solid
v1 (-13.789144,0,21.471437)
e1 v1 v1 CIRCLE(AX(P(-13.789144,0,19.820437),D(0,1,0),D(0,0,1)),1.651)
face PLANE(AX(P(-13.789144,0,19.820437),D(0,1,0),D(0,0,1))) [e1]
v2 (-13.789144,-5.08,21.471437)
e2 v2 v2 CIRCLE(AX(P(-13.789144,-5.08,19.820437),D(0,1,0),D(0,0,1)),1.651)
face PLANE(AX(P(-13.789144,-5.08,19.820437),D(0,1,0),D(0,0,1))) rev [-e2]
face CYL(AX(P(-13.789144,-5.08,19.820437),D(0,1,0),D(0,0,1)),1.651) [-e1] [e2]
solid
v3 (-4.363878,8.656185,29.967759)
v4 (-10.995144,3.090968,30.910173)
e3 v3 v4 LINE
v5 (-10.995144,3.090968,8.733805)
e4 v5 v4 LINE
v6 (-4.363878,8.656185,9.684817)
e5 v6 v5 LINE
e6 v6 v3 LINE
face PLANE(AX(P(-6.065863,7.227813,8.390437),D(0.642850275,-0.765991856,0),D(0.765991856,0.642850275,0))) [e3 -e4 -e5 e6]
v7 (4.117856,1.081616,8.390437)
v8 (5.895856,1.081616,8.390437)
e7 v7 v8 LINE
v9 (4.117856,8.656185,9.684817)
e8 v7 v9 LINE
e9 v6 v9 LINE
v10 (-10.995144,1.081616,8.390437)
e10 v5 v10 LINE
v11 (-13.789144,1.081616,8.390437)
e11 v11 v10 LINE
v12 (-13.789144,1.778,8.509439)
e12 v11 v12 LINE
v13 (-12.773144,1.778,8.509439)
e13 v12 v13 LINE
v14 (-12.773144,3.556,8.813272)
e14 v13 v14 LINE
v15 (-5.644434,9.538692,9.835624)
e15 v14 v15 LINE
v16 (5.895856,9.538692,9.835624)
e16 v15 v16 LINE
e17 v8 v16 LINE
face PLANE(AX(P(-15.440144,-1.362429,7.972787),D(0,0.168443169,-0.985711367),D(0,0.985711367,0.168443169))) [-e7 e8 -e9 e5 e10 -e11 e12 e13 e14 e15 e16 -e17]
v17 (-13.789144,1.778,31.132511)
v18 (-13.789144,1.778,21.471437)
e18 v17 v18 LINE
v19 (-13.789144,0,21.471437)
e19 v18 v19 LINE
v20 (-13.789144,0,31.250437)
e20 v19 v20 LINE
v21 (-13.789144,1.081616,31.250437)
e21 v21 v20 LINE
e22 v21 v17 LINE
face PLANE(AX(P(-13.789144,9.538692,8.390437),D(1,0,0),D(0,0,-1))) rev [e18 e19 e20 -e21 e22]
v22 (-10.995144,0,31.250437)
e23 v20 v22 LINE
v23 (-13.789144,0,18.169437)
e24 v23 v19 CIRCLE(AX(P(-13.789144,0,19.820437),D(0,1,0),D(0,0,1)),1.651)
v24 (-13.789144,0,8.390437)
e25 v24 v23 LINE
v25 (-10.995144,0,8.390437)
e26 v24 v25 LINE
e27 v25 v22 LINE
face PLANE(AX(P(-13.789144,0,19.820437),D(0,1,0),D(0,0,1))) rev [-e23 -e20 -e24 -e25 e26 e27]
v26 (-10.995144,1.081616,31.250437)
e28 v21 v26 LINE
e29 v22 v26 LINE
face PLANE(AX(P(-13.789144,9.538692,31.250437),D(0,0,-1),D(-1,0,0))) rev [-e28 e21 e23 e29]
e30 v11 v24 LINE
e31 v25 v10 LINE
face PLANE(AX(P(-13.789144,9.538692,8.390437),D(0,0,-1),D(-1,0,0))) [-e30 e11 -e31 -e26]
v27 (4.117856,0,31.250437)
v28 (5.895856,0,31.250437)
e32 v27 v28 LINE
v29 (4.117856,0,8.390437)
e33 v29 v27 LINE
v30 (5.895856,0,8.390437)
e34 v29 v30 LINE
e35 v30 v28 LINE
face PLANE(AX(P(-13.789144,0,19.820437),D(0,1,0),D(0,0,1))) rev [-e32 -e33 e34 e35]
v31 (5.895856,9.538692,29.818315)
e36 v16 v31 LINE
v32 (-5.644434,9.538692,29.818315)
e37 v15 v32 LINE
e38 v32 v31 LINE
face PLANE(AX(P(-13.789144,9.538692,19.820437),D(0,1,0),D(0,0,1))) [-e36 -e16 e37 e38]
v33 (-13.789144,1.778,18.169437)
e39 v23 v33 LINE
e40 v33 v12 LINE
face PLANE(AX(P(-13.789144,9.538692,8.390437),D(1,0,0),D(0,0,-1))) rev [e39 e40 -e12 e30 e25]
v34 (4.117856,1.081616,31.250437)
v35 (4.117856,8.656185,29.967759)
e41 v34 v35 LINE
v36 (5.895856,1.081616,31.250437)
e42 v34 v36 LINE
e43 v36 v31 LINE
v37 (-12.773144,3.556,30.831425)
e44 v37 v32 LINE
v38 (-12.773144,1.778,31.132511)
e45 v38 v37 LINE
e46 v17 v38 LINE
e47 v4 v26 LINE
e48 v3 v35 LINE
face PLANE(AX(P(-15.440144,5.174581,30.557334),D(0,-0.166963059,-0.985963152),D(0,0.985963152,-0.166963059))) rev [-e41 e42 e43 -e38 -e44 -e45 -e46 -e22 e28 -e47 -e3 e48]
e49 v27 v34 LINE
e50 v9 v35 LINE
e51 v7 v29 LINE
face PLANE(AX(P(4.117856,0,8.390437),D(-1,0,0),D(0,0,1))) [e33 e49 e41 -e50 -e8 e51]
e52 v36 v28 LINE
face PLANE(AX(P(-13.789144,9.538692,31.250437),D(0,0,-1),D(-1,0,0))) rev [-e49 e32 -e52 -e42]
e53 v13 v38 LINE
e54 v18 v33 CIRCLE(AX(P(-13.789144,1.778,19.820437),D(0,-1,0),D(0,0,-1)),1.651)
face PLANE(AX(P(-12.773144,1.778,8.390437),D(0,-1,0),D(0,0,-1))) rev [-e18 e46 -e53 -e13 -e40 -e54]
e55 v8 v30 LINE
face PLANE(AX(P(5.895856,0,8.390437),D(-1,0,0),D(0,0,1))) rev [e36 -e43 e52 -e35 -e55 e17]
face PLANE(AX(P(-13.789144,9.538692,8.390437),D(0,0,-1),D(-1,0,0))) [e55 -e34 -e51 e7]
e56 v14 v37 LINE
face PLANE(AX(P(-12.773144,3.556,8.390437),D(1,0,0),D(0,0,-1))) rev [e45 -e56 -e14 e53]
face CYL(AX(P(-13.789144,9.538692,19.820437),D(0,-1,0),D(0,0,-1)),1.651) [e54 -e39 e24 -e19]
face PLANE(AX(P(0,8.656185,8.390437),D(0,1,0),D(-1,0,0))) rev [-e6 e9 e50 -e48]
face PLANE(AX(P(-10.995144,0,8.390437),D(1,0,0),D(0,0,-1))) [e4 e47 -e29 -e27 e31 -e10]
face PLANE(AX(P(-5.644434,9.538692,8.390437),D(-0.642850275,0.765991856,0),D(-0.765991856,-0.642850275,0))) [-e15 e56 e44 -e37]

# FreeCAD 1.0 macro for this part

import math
import FreeCAD as App
import Part
import Sketcher
Q = App.Units.Quantity

doc = App.newDocument("Part")
params = doc.addObject("Spreadsheet::Sheet", "Params")
for row, (alias, value) in enumerate([
    ("sketch1_width", "0.8 in"),
    ("sketch1_height", "0.9 in"),
    ("sketch1_radius", "0.065 in"),
    ("pad1_length", "9.538692 mm"),
    ("sketch2_height", "0.07 in"),
    ("sketch2_width", "0.105 in"),
    ("sketch5_width", "0.025 in"),
    ("sketch7_width", "0.595 in"),
    ("sketch9_diameter", "0.13 in"),
    ("pad2_length", "0.2 in"),
], start=1):
    params.set(f"A{row}", alias)
    params.set(f"B{row}", "=" + value)
    params.setAlias(f"B{row}", alias)

body = doc.addObject("PartDesign::Body", "Body")

# Sketch on XZ plane
sketch1 = body.newObject("Sketcher::SketchObject", "Sketch")
sketch1.AttachmentSupport = (doc.getObject("XZ_Plane"), [""])
sketch1.MapMode = "FlatFace"
sketch1.addGeometry(Part.LineSegment(App.Vector(-13.8, 21.5, 0), App.Vector(-13.8, 31.3, 0)), False)
sketch1.addGeometry(Part.LineSegment(App.Vector(-13.8, 31.3, 0), App.Vector(6.5, 31.3, 0)), False)
sketch1.addGeometry(Part.LineSegment(App.Vector(6.5, 31.3, 0), App.Vector(6.5, 8.4, 0)), False)
sketch1.addGeometry(Part.LineSegment(App.Vector(6.5, 8.4, 0), App.Vector(-13.8, 8.4, 0)), False)
sketch1.addGeometry(Part.LineSegment(App.Vector(-13.8, 8.4, 0), App.Vector(-13.8, 18.2, 0)), False)
sketch1.addGeometry(Part.ArcOfCircle(Part.Circle(App.Vector(-13.8, 19.8, 0), App.Vector(0, 0, 1), 1.7), math.radians(90), math.radians(270)), False)
sketch1.addConstraint(Sketcher.Constraint("Coincident", 0, 2, 1, 1))
sketch1.addConstraint(Sketcher.Constraint("Coincident", 1, 2, 2, 1))
sketch1.addConstraint(Sketcher.Constraint("Coincident", 2, 2, 3, 1))
sketch1.addConstraint(Sketcher.Constraint("Coincident", 3, 2, 4, 1))
sketch1.addConstraint(Sketcher.Constraint("Coincident", 4, 2, 5, 2))
sketch1.addConstraint(Sketcher.Constraint("Coincident", 5, 1, 0, 1))
sketch1.addConstraint(Sketcher.Constraint("Vertical", 0))
sketch1.addConstraint(Sketcher.Constraint("Horizontal", 1))
sketch1.addConstraint(Sketcher.Constraint("Vertical", 2))
sketch1.addConstraint(Sketcher.Constraint("Horizontal", 3))
sketch1.addConstraint(Sketcher.Constraint("Vertical", 4))
sketch1.addConstraint(Sketcher.Constraint("Vertical", 5, 3, 0, 2))
sketch1.addConstraint(Sketcher.Constraint("Vertical", 0, 2, 3, 2))
sketch1.addConstraint(Sketcher.Constraint("Equal", 0, 4))
sketch1.addConstraint(Sketcher.Constraint("DistanceX", 1, 1, 1, 2, Q("0.8 in")))
sketch1.addConstraint(Sketcher.Constraint("DistanceY", 2, 2, 2, 1, Q("0.9 in")))
sketch1.addConstraint(Sketcher.Constraint("Radius", 5, Q("0.065 in")))
sketch1.addConstraint(Sketcher.Constraint("DistanceX", 5, 3, -1, 1, 13.789144))
sketch1.addConstraint(Sketcher.Constraint("DistanceY", -1, 1, 5, 3, 19.820437))
sketch1.setExpression("Constraints[14]", "Params.sketch1_width")
sketch1.setExpression("Constraints[15]", "Params.sketch1_height")
sketch1.setExpression("Constraints[16]", "Params.sketch1_radius")
pad1 = body.newObject("PartDesign::Pad", "Pad")
pad1.Profile = sketch1
pad1.setExpression("Length", "Params.pad1_length")
pad1.Reversed = True

# Sketch on XY plane
sketch2 = body.newObject("Sketcher::SketchObject", "Sketch001")
sketch2.AttachmentSupport = (doc.getObject("XY_Plane"), [""])
sketch2.MapMode = "FlatFace"
sketch2.AttachmentOffset = App.Placement(App.Vector(0, 0, 31.250437), App.Rotation())
sketch2.addGeometry(Part.LineSegment(App.Vector(-15.4, 1.8, 0), App.Vector(-12.8, 1.8, 0)), False)
sketch2.addGeometry(Part.LineSegment(App.Vector(-12.8, 1.8, 0), App.Vector(-12.8, 3.6, 0)), False)
sketch2.addGeometry(Part.LineSegment(App.Vector(-12.8, 3.6, 0), App.Vector(-7.2, 9.5, 0)), False)
sketch2.addGeometry(Part.LineSegment(App.Vector(-7.2, 9.5, 0), App.Vector(-15.4, 9.5, 0)), False)
sketch2.addGeometry(Part.LineSegment(App.Vector(-15.4, 9.5, 0), App.Vector(-15.4, 1.8, 0)), False)
sketch2.addConstraint(Sketcher.Constraint("Coincident", 0, 2, 1, 1))
sketch2.addConstraint(Sketcher.Constraint("Coincident", 1, 2, 2, 1))
sketch2.addConstraint(Sketcher.Constraint("Coincident", 2, 2, 3, 1))
sketch2.addConstraint(Sketcher.Constraint("Coincident", 3, 2, 4, 1))
sketch2.addConstraint(Sketcher.Constraint("Coincident", 4, 2, 0, 1))
sketch2.addConstraint(Sketcher.Constraint("Horizontal", 0))
sketch2.addConstraint(Sketcher.Constraint("Vertical", 1))
sketch2.addConstraint(Sketcher.Constraint("Horizontal", 3))
sketch2.addConstraint(Sketcher.Constraint("Vertical", 4))
sketch2.addConstraint(Sketcher.Constraint("DistanceY", 1, 1, 1, 2, Q("0.07 in")))
sketch2.addConstraint(Sketcher.Constraint("DistanceX", 0, 1, 0, 2, Q("0.105 in")))
sketch2.addConstraint(Sketcher.Constraint("DistanceY", -1, 1, 0, 2, Q("0.07 in")))
sketch2.addConstraint(Sketcher.Constraint("DistanceX", 3, 2, 3, 1, 8.213579))
sketch2.addConstraint(Sketcher.Constraint("DistanceY", 4, 2, 4, 1, 7.760692))
sketch2.addConstraint(Sketcher.Constraint("DistanceX", 0, 2, -1, 1, 12.773144))
sketch2.setExpression("Constraints[9]", "Params.sketch2_height")
sketch2.setExpression("Constraints[10]", "Params.sketch2_width")
pocket1 = body.newObject("PartDesign::Pocket", "Pocket")
pocket1.Profile = sketch2
pocket1.Type = "ThroughAll"

# Sketch on YZ plane
sketch3 = body.newObject("Sketcher::SketchObject", "Sketch002")
sketch3.AttachmentSupport = (doc.getObject("YZ_Plane"), [""])
sketch3.MapMode = "FlatFace"
sketch3.AttachmentOffset = App.Placement(App.Vector(0, 0, 6.530856), App.Rotation())
sketch3.addGeometry(Part.LineSegment(App.Vector(9.5, 31.3, 0), App.Vector(1.1, 31.3, 0)), False)
sketch3.addGeometry(Part.LineSegment(App.Vector(1.1, 31.3, 0), App.Vector(9.5, 29.8, 0)), False)
sketch3.addGeometry(Part.LineSegment(App.Vector(9.5, 29.8, 0), App.Vector(9.5, 31.3, 0)), False)
sketch3.addGeometry(Part.LineSegment(App.Vector(9.5, 9.8, 0), App.Vector(1.1, 8.4, 0)), False)
sketch3.addGeometry(Part.LineSegment(App.Vector(1.1, 8.4, 0), App.Vector(9.5, 8.4, 0)), False)
sketch3.addGeometry(Part.LineSegment(App.Vector(9.5, 8.4, 0), App.Vector(9.5, 9.8, 0)), False)
sketch3.addConstraint(Sketcher.Constraint("Coincident", 0, 2, 1, 1))
sketch3.addConstraint(Sketcher.Constraint("Coincident", 1, 2, 2, 1))
sketch3.addConstraint(Sketcher.Constraint("Coincident", 2, 2, 0, 1))
sketch3.addConstraint(Sketcher.Constraint("Coincident", 3, 2, 4, 1))
sketch3.addConstraint(Sketcher.Constraint("Coincident", 4, 2, 5, 1))
sketch3.addConstraint(Sketcher.Constraint("Coincident", 5, 2, 3, 1))
sketch3.addConstraint(Sketcher.Constraint("Horizontal", 0))
sketch3.addConstraint(Sketcher.Constraint("Vertical", 2))
sketch3.addConstraint(Sketcher.Constraint("Horizontal", 4))
sketch3.addConstraint(Sketcher.Constraint("Vertical", 5))
sketch3.addConstraint(Sketcher.Constraint("Vertical", 0, 2, 3, 2))
sketch3.addConstraint(Sketcher.Constraint("Vertical", 2, 2, 4, 2))
sketch3.addConstraint(Sketcher.Constraint("DistanceY", 3, 2, 0, 2, Q("0.9 in")))
sketch3.addConstraint(Sketcher.Constraint("DistanceY", 2, 1, 2, 2, 1.432122))
sketch3.addConstraint(Sketcher.Constraint("Distance", 3, 8.579668))
sketch3.addConstraint(Sketcher.Constraint("DistanceX", 0, 2, 0, 1, 8.457077))
sketch3.addConstraint(Sketcher.Constraint("DistanceX", -1, 1, 0, 2, 1.081616))
sketch3.addConstraint(Sketcher.Constraint("DistanceY", -1, 1, 0, 2, 31.250437))
pocket2 = body.newObject("PartDesign::Pocket", "Pocket001")
pocket2.Profile = sketch3
pocket2.Type = "ThroughAll"

# Sketch on XY plane
sketch4 = body.newObject("Sketcher::SketchObject", "Sketch003")
sketch4.AttachmentSupport = (doc.getObject("XY_Plane"), [""])
sketch4.MapMode = "FlatFace"
sketch4.AttachmentOffset = App.Placement(App.Vector(0, 0, 31.250437), App.Rotation())
sketch4.addGeometry(Part.LineSegment(App.Vector(-12.8, 3.6, 0), App.Vector(-6.6, 9.5, 0)), False)
sketch4.addGeometry(Part.LineSegment(App.Vector(-6.6, 9.5, 0), App.Vector(-7.2, 9.5, 0)), False)
sketch4.addGeometry(Part.LineSegment(App.Vector(-7.2, 9.5, 0), App.Vector(-12.8, 3.6, 0)), False)
sketch4.addConstraint(Sketcher.Constraint("Coincident", 0, 2, 1, 1))
sketch4.addConstraint(Sketcher.Constraint("Coincident", 1, 2, 2, 1))
sketch4.addConstraint(Sketcher.Constraint("Coincident", 2, 2, 0, 1))
sketch4.addConstraint(Sketcher.Constraint("Horizontal", 1))
sketch4.addConstraint(Sketcher.Constraint("DistanceY", -1, 1, 2, 2, Q("0.14 in")))
sketch4.addConstraint(Sketcher.Constraint("DistanceX", 1, 2, 1, 1, 0.582187))
sketch4.addConstraint(Sketcher.Constraint("DistanceX", 0, 2, -1, 1, 6.644379))
sketch4.addConstraint(Sketcher.Constraint("DistanceX", 2, 2, 1, 2, 5.546579))
sketch4.addConstraint(Sketcher.Constraint("Distance", 0, 8.564716))
pocket3 = body.newObject("PartDesign::Pocket", "Pocket002")
pocket3.Profile = sketch4
pocket3.Type = "ThroughAll"

# Sketch on XY plane
sketch5 = body.newObject("Sketcher::SketchObject", "Sketch004")
sketch5.AttachmentSupport = (doc.getObject("XY_Plane"), [""])
sketch5.MapMode = "FlatFace"
sketch5.AttachmentOffset = App.Placement(App.Vector(0, 0, 31.250437), App.Rotation())
sketch5.addGeometry(Part.LineSegment(App.Vector(5.9, 9.5, 0), App.Vector(5.9, 0, 0)), False)
sketch5.addGeometry(Part.LineSegment(App.Vector(5.9, 0, 0), App.Vector(6.5, 0, 0)), False)
sketch5.addGeometry(Part.LineSegment(App.Vector(6.5, 0, 0), App.Vector(6.5, 9.5, 0)), False)
sketch5.addGeometry(Part.LineSegment(App.Vector(6.5, 9.5, 0), App.Vector(5.9, 9.5, 0)), False)
sketch5.addConstraint(Sketcher.Constraint("Coincident", 0, 2, 1, 1))
sketch5.addConstraint(Sketcher.Constraint("Coincident", 1, 2, 2, 1))
sketch5.addConstraint(Sketcher.Constraint("Coincident", 2, 2, 3, 1))
sketch5.addConstraint(Sketcher.Constraint("Coincident", 3, 2, 0, 1))
sketch5.addConstraint(Sketcher.Constraint("Vertical", 0))
sketch5.addConstraint(Sketcher.Constraint("Horizontal", 1))
sketch5.addConstraint(Sketcher.Constraint("Vertical", 2))
sketch5.addConstraint(Sketcher.Constraint("Horizontal", 3))
sketch5.addConstraint(Sketcher.Constraint("PointOnObject", 0, 2, -1))
sketch5.addConstraint(Sketcher.Constraint("DistanceX", 1, 1, 1, 2, Q("0.025 in")))
sketch5.addConstraint(Sketcher.Constraint("DistanceY", 0, 2, 0, 1, 9.538692))
sketch5.addConstraint(Sketcher.Constraint("DistanceX", -1, 1, 0, 2, 5.895856))
sketch5.setExpression("Constraints[9]", "Params.sketch5_width")
pocket4 = body.newObject("PartDesign::Pocket", "Pocket003")
pocket4.Profile = sketch5
pocket4.Type = "ThroughAll"

# Sketch on XY plane
sketch6 = body.newObject("Sketcher::SketchObject", "Sketch005")
sketch6.AttachmentSupport = (doc.getObject("XY_Plane"), [""])
sketch6.MapMode = "FlatFace"
sketch6.AttachmentOffset = App.Placement(App.Vector(0, 0, 31.250437), App.Rotation())
sketch6.addGeometry(Part.LineSegment(App.Vector(-5.6, 9.5, 0), App.Vector(-6.6, 9.5, 0)), False)
sketch6.addGeometry(Part.LineSegment(App.Vector(-6.6, 9.5, 0), App.Vector(-12.8, 3.6, 0)), False)
sketch6.addGeometry(Part.LineSegment(App.Vector(-12.8, 3.6, 0), App.Vector(-5.6, 9.5, 0)), False)
sketch6.addConstraint(Sketcher.Constraint("Coincident", 0, 2, 1, 1))
sketch6.addConstraint(Sketcher.Constraint("Coincident", 1, 2, 2, 1))
sketch6.addConstraint(Sketcher.Constraint("Coincident", 2, 2, 0, 1))
sketch6.addConstraint(Sketcher.Constraint("Horizontal", 0))
sketch6.addConstraint(Sketcher.Constraint("DistanceY", -1, 1, 1, 2, Q("0.14 in")))
sketch6.addConstraint(Sketcher.Constraint("Distance", 2, 9.30651))
sketch6.addConstraint(Sketcher.Constraint("DistanceX", 0, 2, 0, 1, 0.999945))
sketch6.addConstraint(Sketcher.Constraint("DistanceX", 0, 2, -1, 1, 6.644379))
sketch6.addConstraint(Sketcher.Constraint("DistanceX", 1, 2, 2, 2, 7.128711))
pocket5 = body.newObject("PartDesign::Pocket", "Pocket004")
pocket5.Profile = sketch6
pocket5.Type = "ThroughAll"

# Sketch on XY plane
sketch7 = body.newObject("Sketcher::SketchObject", "Sketch006")
sketch7.AttachmentSupport = (doc.getObject("XY_Plane"), [""])
sketch7.MapMode = "FlatFace"
sketch7.AttachmentOffset = App.Placement(App.Vector(0, 0, 31.250437), App.Rotation())
sketch7.addGeometry(Part.LineSegment(App.Vector(4.1, 7.8, 0), App.Vector(-5.4, 7.8, 0)), False)
sketch7.addGeometry(Part.LineSegment(App.Vector(-5.4, 7.8, 0), App.Vector(-8.2, 5.4, 0)), False)
sketch7.addGeometry(Part.LineSegment(App.Vector(-8.2, 5.4, 0), App.Vector(-11, 3.1, 0)), False)
sketch7.addGeometry(Part.LineSegment(App.Vector(-11, 3.1, 0), App.Vector(-11, 0, 0)), False)
sketch7.addGeometry(Part.LineSegment(App.Vector(-11, 0, 0), App.Vector(4.1, 0, 0)), False)
sketch7.addGeometry(Part.LineSegment(App.Vector(4.1, 0, 0), App.Vector(4.1, 7.8, 0)), False)
sketch7.addConstraint(Sketcher.Constraint("Coincident", 0, 2, 1, 1))
sketch7.addConstraint(Sketcher.Constraint("Coincident", 1, 2, 2, 1))
sketch7.addConstraint(Sketcher.Constraint("Coincident", 2, 2, 3, 1))
sketch7.addConstraint(Sketcher.Constraint("Coincident", 3, 2, 4, 1))
sketch7.addConstraint(Sketcher.Constraint("Coincident", 4, 2, 5, 1))
sketch7.addConstraint(Sketcher.Constraint("Coincident", 5, 2, 0, 1))
sketch7.addConstraint(Sketcher.Constraint("Horizontal", 0))
sketch7.addConstraint(Sketcher.Constraint("Vertical", 3))
sketch7.addConstraint(Sketcher.Constraint("Horizontal", 4))
sketch7.addConstraint(Sketcher.Constraint("Vertical", 5))
sketch7.addConstraint(Sketcher.Constraint("PointOnObject", 3, 2, -1))
sketch7.addConstraint(Sketcher.Constraint("Parallel", 1, 2))
sketch7.addConstraint(Sketcher.Constraint("DistanceX", 4, 1, 4, 2, Q("0.595 in")))
sketch7.addConstraint(Sketcher.Constraint("DistanceX", 0, 2, 0, 1, 9.548763))
sketch7.addConstraint(Sketcher.Constraint("DistanceY", 3, 2, 3, 1, 3.090968))
sketch7.addConstraint(Sketcher.Constraint("DistanceY", 5, 1, 5, 2, 7.760692))
sketch7.addConstraint(Sketcher.Constraint("DistanceX", 1, 2, -1, 1, 8.245029))
sketch7.addConstraint(Sketcher.Constraint("DistanceX", 1, 2, 0, 2, 2.814121))
sketch7.setExpression("Constraints[12]", "Params.sketch7_width")
pocket6 = body.newObject("PartDesign::Pocket", "Pocket005")
pocket6.Profile = sketch7
pocket6.Type = "ThroughAll"

# Sketch on XY plane
sketch8 = body.newObject("Sketcher::SketchObject", "Sketch007")
sketch8.AttachmentSupport = (doc.getObject("XY_Plane"), [""])
sketch8.MapMode = "FlatFace"
sketch8.AttachmentOffset = App.Placement(App.Vector(0, 0, 31.250437), App.Rotation())
sketch8.addGeometry(Part.LineSegment(App.Vector(-4.4, 8.7, 0), App.Vector(-5.4, 7.8, 0)), False)
sketch8.addGeometry(Part.LineSegment(App.Vector(-5.4, 7.8, 0), App.Vector(4.1, 7.8, 0)), False)
sketch8.addGeometry(Part.LineSegment(App.Vector(4.1, 7.8, 0), App.Vector(4.1, 8.7, 0)), False)
sketch8.addGeometry(Part.LineSegment(App.Vector(4.1, 8.7, 0), App.Vector(-4.4, 8.7, 0)), False)
sketch8.addConstraint(Sketcher.Constraint("Coincident", 0, 2, 1, 1))
sketch8.addConstraint(Sketcher.Constraint("Coincident", 1, 2, 2, 1))
sketch8.addConstraint(Sketcher.Constraint("Coincident", 2, 2, 3, 1))
sketch8.addConstraint(Sketcher.Constraint("Coincident", 3, 2, 0, 1))
sketch8.addConstraint(Sketcher.Constraint("Horizontal", 1))
sketch8.addConstraint(Sketcher.Constraint("Vertical", 2))
sketch8.addConstraint(Sketcher.Constraint("Horizontal", 3))
sketch8.addConstraint(Sketcher.Constraint("DistanceX", 1, 1, 1, 2, 9.548763))
sketch8.addConstraint(Sketcher.Constraint("DistanceX", 3, 2, 3, 1, 8.481734))
sketch8.addConstraint(Sketcher.Constraint("DistanceY", 2, 1, 2, 2, 0.895493))
sketch8.addConstraint(Sketcher.Constraint("DistanceX", 3, 2, -1, 1, 4.363878))
sketch8.addConstraint(Sketcher.Constraint("DistanceY", -1, 1, 0, 2, 7.760692))
pocket7 = body.newObject("PartDesign::Pocket", "Pocket006")
pocket7.Profile = sketch8
pocket7.Type = "ThroughAll"
body2 = doc.addObject("PartDesign::Body", "Body001")

# Sketch on XZ plane
sketch9 = body2.newObject("Sketcher::SketchObject", "Sketch008")
sketch9.AttachmentSupport = (doc.getObject("XZ_Plane001"), [""])
sketch9.MapMode = "FlatFace"
sketch9.addGeometry(Part.Circle(App.Vector(-13.8, 19.8, 0), App.Vector(0, 0, 1), 1.7), False)
sketch9.addConstraint(Sketcher.Constraint("Diameter", 0, Q("0.13 in")))
sketch9.addConstraint(Sketcher.Constraint("DistanceX", 0, 3, -1, 1, 13.789144))
sketch9.addConstraint(Sketcher.Constraint("DistanceY", -1, 1, 0, 3, 19.820437))
sketch9.setExpression("Constraints[0]", "Params.sketch9_diameter")
pad2 = body2.newObject("PartDesign::Pad", "Pad001")
pad2.Profile = sketch9
pad2.setExpression("Length", "Params.pad2_length")

doc.recompute()
